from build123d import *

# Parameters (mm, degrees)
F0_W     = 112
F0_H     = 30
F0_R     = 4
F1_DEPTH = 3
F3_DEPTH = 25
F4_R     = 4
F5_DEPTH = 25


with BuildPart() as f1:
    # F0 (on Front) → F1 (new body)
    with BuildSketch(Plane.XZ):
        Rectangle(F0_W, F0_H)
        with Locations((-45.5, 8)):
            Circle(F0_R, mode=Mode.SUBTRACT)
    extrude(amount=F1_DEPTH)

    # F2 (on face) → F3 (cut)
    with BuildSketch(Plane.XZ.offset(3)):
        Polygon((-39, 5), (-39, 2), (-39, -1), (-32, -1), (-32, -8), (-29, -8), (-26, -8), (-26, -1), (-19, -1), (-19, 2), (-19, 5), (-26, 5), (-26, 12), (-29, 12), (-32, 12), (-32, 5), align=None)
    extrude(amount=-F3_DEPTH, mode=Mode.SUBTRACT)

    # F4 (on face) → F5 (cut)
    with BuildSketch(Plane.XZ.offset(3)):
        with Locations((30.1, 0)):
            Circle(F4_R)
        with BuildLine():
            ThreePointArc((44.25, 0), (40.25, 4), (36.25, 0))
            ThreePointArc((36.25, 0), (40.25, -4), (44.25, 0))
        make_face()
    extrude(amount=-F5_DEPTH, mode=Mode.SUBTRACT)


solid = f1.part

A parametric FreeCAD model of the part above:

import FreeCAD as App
import Part
import Sketcher
Q = App.Units.Quantity


def add_polygon(sketch, points):
    """Adds a closed chain of lines whose ends are joined by coincident constraints."""
    first, n = sketch.GeometryCount, len(points)
    for a, b in zip(points, points[1:] + points[:1]):
        sketch.addGeometry(Part.LineSegment(App.Vector(*a, 0), App.Vector(*b, 0)), False)
    for i in range(n):
        sketch.addConstraint(Sketcher.Constraint("Coincident", first + i, 2, first + (i + 1) % n, 1))

doc = App.newDocument("Part")
body = doc.addObject("PartDesign::Body", "Body")

# Sketch on XZ plane
sketch1 = body.newObject("Sketcher::SketchObject", "Sketch")
sketch1.AttachmentSupport = (doc.getObject("XZ_Plane"), [""])
sketch1.MapMode = "FlatFace"
add_polygon(sketch1, [(-56, 15), (-56, -15), (56, -15), (56, 15)])  # lines 0-3
sketch1.addGeometry(Part.Circle(App.Vector(-45.5, 8, 0), App.Vector(0, 0, 1), 4), False)  # 4
sketch1.addConstraint([
    Sketcher.Constraint("Vertical", 0),
    Sketcher.Constraint("Horizontal", 1),
    Sketcher.Constraint("Vertical", 2),
    Sketcher.Constraint("Horizontal", 3),
    Sketcher.Constraint("Symmetric", 0, 2, 2, 2, -1, 1),
    Sketcher.Constraint("Diameter", 4, Q("8 mm")),
    Sketcher.Constraint("DistanceX", 1, 1, 1, 2, Q("112 mm")),
    Sketcher.Constraint("DistanceY", 0, 2, 0, 1, Q("30 mm")),
    Sketcher.Constraint("DistanceY", -1, 1, 4, 3, Q("8 mm")),
    Sketcher.Constraint("DistanceX", 4, 3, -1, 1, Q("45.5 mm")),
])
pad1 = body.newObject("PartDesign::Pad", "Pad")
pad1.Profile = sketch1
pad1.Length = 3

# Sketch on XZ plane
sketch2 = body.newObject("Sketcher::SketchObject", "Sketch001")
sketch2.AttachmentSupport = (doc.getObject("XZ_Plane"), [""])
sketch2.MapMode = "FlatFace"
sketch2.AttachmentOffset = App.Placement(App.Vector(0, 0, 3), App.Rotation())
add_polygon(sketch2, [(-39, 5), (-39, -1), (-32, -1), (-32, -8), (-26, -8), (-26, -1), (-19, -1), (-19, 5), (-26, 5), (-26, 12), (-32, 12), (-32, 5)])  # lines 0-11
sketch2.addConstraint([
    Sketcher.Constraint("Vertical", 0),
    Sketcher.Constraint("Horizontal", 1),
    Sketcher.Constraint("Vertical", 2),
    Sketcher.Constraint("Horizontal", 3),
    Sketcher.Constraint("Vertical", 4),
    Sketcher.Constraint("Horizontal", 5),
    Sketcher.Constraint("Vertical", 6),
    Sketcher.Constraint("Horizontal", 7),
    Sketcher.Constraint("Vertical", 8),
    Sketcher.Constraint("Horizontal", 9),
    Sketcher.Constraint("Vertical", 10),
    Sketcher.Constraint("Horizontal", 11),
    Sketcher.Constraint("Horizontal", 1, 2, 4, 2),
    Sketcher.Constraint("Horizontal", 7, 2, 10, 2),
    Sketcher.Constraint("Vertical", 4, 2, 7, 2),
    Sketcher.Constraint("Vertical", 2, 2, 9, 2),
    Sketcher.Constraint("Equal", 1, 5),
    Sketcher.Constraint("Equal", 9, 0),
    Sketcher.Constraint("Equal", 11, 2),
    Sketcher.Constraint("Equal", 4, 8),
    Sketcher.Constraint("DistanceX", 1, 1, 1, 2, Q("7 mm")),
    Sketcher.Constraint("DistanceX", 3, 1, 3, 2, Q("6 mm")),
    Sketcher.Constraint("DistanceX", 0, 2, -1, 1, Q("39 mm")),
    Sketcher.Constraint("DistanceY", 0, 2, -1, 1, Q("1 mm")),
])
pocket1 = body.newObject("PartDesign::Pocket", "Pocket")
pocket1.Profile = sketch2
pocket1.Length = 25

# Sketch on XZ plane
sketch3 = body.newObject("Sketcher::SketchObject", "Sketch002")
sketch3.AttachmentSupport = (doc.getObject("XZ_Plane"), [""])
sketch3.MapMode = "FlatFace"
sketch3.AttachmentOffset = App.Placement(App.Vector(0, 0, 3), App.Rotation())
sketch3.addGeometry([
    Part.Circle(App.Vector(30.1, 0, 0), App.Vector(0, 0, 1), 4),
    Part.Circle(App.Vector(40.2, 0, 0), App.Vector(0, 0, 1), 4),
], False)
sketch3.addConstraint([
    Sketcher.Constraint("Equal", 0, 1),
    Sketcher.Constraint("PointOnObject", 0, 3, -1),
    Sketcher.Constraint("PointOnObject", 1, 3, -1),
    Sketcher.Constraint("Diameter", 0, Q("8 mm")),
    Sketcher.Constraint("DistanceX", -1, 1, 0, 3, Q("30.1 mm")),
    Sketcher.Constraint("DistanceX", -1, 1, 1, 3, Q("40.25 mm")),
])
pocket2 = body.newObject("PartDesign::Pocket", "Pocket001")
pocket2.Profile = sketch3
pocket2.Length = 25

doc.recompute()
